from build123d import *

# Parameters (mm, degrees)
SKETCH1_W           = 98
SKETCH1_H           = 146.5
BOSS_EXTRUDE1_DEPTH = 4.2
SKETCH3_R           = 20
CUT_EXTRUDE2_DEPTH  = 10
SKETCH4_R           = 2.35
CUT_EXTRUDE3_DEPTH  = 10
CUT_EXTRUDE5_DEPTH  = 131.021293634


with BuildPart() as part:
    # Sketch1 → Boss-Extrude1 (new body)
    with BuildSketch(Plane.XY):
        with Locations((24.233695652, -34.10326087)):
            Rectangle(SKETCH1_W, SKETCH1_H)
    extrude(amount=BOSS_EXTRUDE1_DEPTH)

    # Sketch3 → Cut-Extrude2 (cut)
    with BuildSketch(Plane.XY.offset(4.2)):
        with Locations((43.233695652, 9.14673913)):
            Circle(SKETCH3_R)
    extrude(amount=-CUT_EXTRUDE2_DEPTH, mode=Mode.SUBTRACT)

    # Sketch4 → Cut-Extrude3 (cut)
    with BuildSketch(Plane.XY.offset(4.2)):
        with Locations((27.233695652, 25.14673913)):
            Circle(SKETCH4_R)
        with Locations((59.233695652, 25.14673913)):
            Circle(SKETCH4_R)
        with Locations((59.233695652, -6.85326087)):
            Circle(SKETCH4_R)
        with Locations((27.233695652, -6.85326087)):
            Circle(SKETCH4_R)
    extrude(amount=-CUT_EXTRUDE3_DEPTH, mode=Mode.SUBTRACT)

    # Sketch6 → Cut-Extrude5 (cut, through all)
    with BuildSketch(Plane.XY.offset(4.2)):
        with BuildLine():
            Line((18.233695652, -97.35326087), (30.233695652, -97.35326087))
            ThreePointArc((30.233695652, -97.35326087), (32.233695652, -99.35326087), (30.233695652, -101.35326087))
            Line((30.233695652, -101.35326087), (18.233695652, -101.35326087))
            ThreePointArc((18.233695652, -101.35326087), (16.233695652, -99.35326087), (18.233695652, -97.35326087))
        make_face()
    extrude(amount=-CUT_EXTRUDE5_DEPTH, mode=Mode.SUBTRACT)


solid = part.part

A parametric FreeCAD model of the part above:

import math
import FreeCAD as App
import Part
import Sketcher
from FreeCAD import Vector


def add_polygon(sketch, points):
    """Adds a closed chain of lines whose ends are joined by coincident constraints."""
    first, n = sketch.GeometryCount, len(points)
    for a, b in zip(points, points[1:] + points[:1]):
        sketch.addGeometry(Part.LineSegment(App.Vector(*a, 0), App.Vector(*b, 0)), False)
    for i in range(n):
        sketch.addConstraint(Sketcher.Constraint("Coincident", first + i, 2, first + (i + 1) % n, 1))

doc = App.newDocument("Part")
params = doc.addObject("Spreadsheet::Sheet", "Params")
for row, (alias, value) in enumerate([
    ("sketch1_width", "98 mm"),
    ("sketch1_height", "146.5 mm"),
    ("pad1_length", "4.2 mm"),
    ("sketch2_diameter", "40 mm"),
    ("pocket1_length", "10 mm"),
    ("sketch3_diameter", "4.7 mm"),
    ("pocket2_length", "10 mm"),
    ("sketch4_radius", "2 mm"),
    ("sketch4_width", "12 mm"),
], start=1):
    params.set(f"A{row}", alias)
    params.set(f"B{row}", "=" + value)
    params.setAlias(f"B{row}", alias)

body = doc.addObject("PartDesign::Body", "Body")

# Sketch on XY plane
sketch1 = body.newObject("Sketcher::SketchObject", "Sketch")
sketch1.AttachmentSupport = (doc.getObject("XY_Plane"), [""])
sketch1.MapMode = "FlatFace"
add_polygon(sketch1, [(-25, 39), (-25, -107), (73, -107), (73, 39)])  # lines 0-3
sketch1.addConstraint([
    Sketcher.Constraint("Vertical", 0),
    Sketcher.Constraint("Horizontal", 1),
    Sketcher.Constraint("Vertical", 2),
    Sketcher.Constraint("Horizontal", 3),
    Sketcher.Constraint("DistanceX", 1, 1, 1, 2, 98.0),
    Sketcher.Constraint("DistanceY", 0, 2, 0, 1, 146.5),
    Sketcher.Constraint("DistanceY", 0, 2, -1, 1, 107.353261),
    Sketcher.Constraint("DistanceX", 0, 2, -1, 1, 24.766304),
])
sketch1.setExpression("Constraints[8]", "Params.sketch1_width")
sketch1.setExpression("Constraints[9]", "Params.sketch1_height")
pad1 = body.newObject("PartDesign::Pad", "Pad")
pad1.Profile = sketch1
pad1.setExpression("Length", "Params.pad1_length")

# Sketch on XY plane
sketch2 = body.newObject("Sketcher::SketchObject", "Sketch001")
sketch2.AttachmentSupport = (doc.getObject("XY_Plane"), [""])
sketch2.MapMode = "FlatFace"
sketch2.AttachmentOffset = App.Placement(Vector(0, 0, 4.2), App.Rotation())
sketch2.addGeometry(Part.Circle(Vector(43, 9, 0), Vector(0, 0, 1), 20), False)
sketch2.addConstraint([
    Sketcher.Constraint("Diameter", 0, 40.0),
    Sketcher.Constraint("DistanceY", -1, 1, 0, 3, 9.146739),
    Sketcher.Constraint("DistanceX", -1, 1, 0, 3, 43.233696),
])
sketch2.setExpression("Constraints[0]", "Params.sketch2_diameter")
pocket1 = body.newObject("PartDesign::Pocket", "Pocket")
pocket1.Profile = sketch2
pocket1.setExpression("Length", "Params.pocket1_length")

# Sketch on XY plane
sketch3 = body.newObject("Sketcher::SketchObject", "Sketch002")
sketch3.AttachmentSupport = (doc.getObject("XY_Plane"), [""])
sketch3.MapMode = "FlatFace"
sketch3.AttachmentOffset = App.Placement(Vector(0, 0, 4.2), App.Rotation())
sketch3.addGeometry([
    Part.Circle(Vector(27.2, 25.1, 0), Vector(0, 0, 1), 2.4),
    Part.Circle(Vector(59.2, 25.1, 0), Vector(0, 0, 1), 2.4),
    Part.Circle(Vector(59.2, -6.9, 0), Vector(0, 0, 1), 2.4),
    Part.Circle(Vector(27.2, -6.9, 0), Vector(0, 0, 1), 2.4),
], False)
sketch3.addConstraint([
    Sketcher.Constraint("Equal", 0, 1),
    Sketcher.Constraint("Equal", 1, 2),
    Sketcher.Constraint("Equal", 2, 3),
    Sketcher.Constraint("Horizontal", 0, 3, 1, 3),
    Sketcher.Constraint("Horizontal", 2, 3, 3, 3),
    Sketcher.Constraint("Vertical", 1, 3, 2, 3),
    Sketcher.Constraint("Vertical", 0, 3, 3, 3),
    Sketcher.Constraint("Diameter", 0, 4.7),
    Sketcher.Constraint("DistanceX", 0, 3, 1, 3, 32.0),
    Sketcher.Constraint("DistanceY", 2, 3, 1, 3, 32.0),
    Sketcher.Constraint("DistanceY", -1, 1, 0, 3, 25.146739),
    Sketcher.Constraint("DistanceX", -1, 1, 0, 3, 27.233696),
])
sketch3.setExpression("Constraints[7]", "Params.sketch3_diameter")
pocket2 = body.newObject("PartDesign::Pocket", "Pocket001")
pocket2.Profile = sketch3
pocket2.setExpression("Length", "Params.pocket2_length")

# Sketch on XY plane
sketch4 = body.newObject("Sketcher::SketchObject", "Sketch003")
sketch4.AttachmentSupport = (doc.getObject("XY_Plane"), [""])
sketch4.MapMode = "FlatFace"
sketch4.AttachmentOffset = App.Placement(Vector(0, 0, 4.2), App.Rotation())
sketch4.addGeometry([
    Part.LineSegment(Vector(30.2, -97.4, 0), Vector(18.2, -97.4, 0)),
    Part.ArcOfCircle(Part.Circle(Vector(18.2, -99.4, 0), Vector(0, 0, 1), 2), math.radians(90), math.radians(270)),
    Part.LineSegment(Vector(18.2, -101.4, 0), Vector(30.2, -101.4, 0)),
    Part.ArcOfCircle(Part.Circle(Vector(30.2, -99.4, 0), Vector(0, 0, 1), 2), math.radians(-90), math.radians(90)),
], False)
sketch4.addConstraint([
    Sketcher.Constraint("Tangent", 0, 2, 1, 1),
    Sketcher.Constraint("Tangent", 1, 2, 2, 1),
    Sketcher.Constraint("Tangent", 2, 2, 3, 1),
    Sketcher.Constraint("Tangent", 3, 2, 0, 1),
    Sketcher.Constraint("Horizontal", 0),
    Sketcher.Constraint("Horizontal", 2),
    Sketcher.Constraint("Radius", 1, 2.0),
    Sketcher.Constraint("DistanceX", 0, 2, 0, 1, 12.0),
    Sketcher.Constraint("DistanceY", 1, 3, -1, 1, 99.353261),
    Sketcher.Constraint("DistanceX", -1, 1, 1, 3, 18.233696),
])
sketch4.setExpression("Constraints[6]", "Params.sketch4_radius")
sketch4.setExpression("Constraints[7]", "Params.sketch4_width")
pocket3 = body.newObject("PartDesign::Pocket", "Pocket002")
pocket3.Profile = sketch4
pocket3.Type = "ThroughAll"

doc.recompute()
